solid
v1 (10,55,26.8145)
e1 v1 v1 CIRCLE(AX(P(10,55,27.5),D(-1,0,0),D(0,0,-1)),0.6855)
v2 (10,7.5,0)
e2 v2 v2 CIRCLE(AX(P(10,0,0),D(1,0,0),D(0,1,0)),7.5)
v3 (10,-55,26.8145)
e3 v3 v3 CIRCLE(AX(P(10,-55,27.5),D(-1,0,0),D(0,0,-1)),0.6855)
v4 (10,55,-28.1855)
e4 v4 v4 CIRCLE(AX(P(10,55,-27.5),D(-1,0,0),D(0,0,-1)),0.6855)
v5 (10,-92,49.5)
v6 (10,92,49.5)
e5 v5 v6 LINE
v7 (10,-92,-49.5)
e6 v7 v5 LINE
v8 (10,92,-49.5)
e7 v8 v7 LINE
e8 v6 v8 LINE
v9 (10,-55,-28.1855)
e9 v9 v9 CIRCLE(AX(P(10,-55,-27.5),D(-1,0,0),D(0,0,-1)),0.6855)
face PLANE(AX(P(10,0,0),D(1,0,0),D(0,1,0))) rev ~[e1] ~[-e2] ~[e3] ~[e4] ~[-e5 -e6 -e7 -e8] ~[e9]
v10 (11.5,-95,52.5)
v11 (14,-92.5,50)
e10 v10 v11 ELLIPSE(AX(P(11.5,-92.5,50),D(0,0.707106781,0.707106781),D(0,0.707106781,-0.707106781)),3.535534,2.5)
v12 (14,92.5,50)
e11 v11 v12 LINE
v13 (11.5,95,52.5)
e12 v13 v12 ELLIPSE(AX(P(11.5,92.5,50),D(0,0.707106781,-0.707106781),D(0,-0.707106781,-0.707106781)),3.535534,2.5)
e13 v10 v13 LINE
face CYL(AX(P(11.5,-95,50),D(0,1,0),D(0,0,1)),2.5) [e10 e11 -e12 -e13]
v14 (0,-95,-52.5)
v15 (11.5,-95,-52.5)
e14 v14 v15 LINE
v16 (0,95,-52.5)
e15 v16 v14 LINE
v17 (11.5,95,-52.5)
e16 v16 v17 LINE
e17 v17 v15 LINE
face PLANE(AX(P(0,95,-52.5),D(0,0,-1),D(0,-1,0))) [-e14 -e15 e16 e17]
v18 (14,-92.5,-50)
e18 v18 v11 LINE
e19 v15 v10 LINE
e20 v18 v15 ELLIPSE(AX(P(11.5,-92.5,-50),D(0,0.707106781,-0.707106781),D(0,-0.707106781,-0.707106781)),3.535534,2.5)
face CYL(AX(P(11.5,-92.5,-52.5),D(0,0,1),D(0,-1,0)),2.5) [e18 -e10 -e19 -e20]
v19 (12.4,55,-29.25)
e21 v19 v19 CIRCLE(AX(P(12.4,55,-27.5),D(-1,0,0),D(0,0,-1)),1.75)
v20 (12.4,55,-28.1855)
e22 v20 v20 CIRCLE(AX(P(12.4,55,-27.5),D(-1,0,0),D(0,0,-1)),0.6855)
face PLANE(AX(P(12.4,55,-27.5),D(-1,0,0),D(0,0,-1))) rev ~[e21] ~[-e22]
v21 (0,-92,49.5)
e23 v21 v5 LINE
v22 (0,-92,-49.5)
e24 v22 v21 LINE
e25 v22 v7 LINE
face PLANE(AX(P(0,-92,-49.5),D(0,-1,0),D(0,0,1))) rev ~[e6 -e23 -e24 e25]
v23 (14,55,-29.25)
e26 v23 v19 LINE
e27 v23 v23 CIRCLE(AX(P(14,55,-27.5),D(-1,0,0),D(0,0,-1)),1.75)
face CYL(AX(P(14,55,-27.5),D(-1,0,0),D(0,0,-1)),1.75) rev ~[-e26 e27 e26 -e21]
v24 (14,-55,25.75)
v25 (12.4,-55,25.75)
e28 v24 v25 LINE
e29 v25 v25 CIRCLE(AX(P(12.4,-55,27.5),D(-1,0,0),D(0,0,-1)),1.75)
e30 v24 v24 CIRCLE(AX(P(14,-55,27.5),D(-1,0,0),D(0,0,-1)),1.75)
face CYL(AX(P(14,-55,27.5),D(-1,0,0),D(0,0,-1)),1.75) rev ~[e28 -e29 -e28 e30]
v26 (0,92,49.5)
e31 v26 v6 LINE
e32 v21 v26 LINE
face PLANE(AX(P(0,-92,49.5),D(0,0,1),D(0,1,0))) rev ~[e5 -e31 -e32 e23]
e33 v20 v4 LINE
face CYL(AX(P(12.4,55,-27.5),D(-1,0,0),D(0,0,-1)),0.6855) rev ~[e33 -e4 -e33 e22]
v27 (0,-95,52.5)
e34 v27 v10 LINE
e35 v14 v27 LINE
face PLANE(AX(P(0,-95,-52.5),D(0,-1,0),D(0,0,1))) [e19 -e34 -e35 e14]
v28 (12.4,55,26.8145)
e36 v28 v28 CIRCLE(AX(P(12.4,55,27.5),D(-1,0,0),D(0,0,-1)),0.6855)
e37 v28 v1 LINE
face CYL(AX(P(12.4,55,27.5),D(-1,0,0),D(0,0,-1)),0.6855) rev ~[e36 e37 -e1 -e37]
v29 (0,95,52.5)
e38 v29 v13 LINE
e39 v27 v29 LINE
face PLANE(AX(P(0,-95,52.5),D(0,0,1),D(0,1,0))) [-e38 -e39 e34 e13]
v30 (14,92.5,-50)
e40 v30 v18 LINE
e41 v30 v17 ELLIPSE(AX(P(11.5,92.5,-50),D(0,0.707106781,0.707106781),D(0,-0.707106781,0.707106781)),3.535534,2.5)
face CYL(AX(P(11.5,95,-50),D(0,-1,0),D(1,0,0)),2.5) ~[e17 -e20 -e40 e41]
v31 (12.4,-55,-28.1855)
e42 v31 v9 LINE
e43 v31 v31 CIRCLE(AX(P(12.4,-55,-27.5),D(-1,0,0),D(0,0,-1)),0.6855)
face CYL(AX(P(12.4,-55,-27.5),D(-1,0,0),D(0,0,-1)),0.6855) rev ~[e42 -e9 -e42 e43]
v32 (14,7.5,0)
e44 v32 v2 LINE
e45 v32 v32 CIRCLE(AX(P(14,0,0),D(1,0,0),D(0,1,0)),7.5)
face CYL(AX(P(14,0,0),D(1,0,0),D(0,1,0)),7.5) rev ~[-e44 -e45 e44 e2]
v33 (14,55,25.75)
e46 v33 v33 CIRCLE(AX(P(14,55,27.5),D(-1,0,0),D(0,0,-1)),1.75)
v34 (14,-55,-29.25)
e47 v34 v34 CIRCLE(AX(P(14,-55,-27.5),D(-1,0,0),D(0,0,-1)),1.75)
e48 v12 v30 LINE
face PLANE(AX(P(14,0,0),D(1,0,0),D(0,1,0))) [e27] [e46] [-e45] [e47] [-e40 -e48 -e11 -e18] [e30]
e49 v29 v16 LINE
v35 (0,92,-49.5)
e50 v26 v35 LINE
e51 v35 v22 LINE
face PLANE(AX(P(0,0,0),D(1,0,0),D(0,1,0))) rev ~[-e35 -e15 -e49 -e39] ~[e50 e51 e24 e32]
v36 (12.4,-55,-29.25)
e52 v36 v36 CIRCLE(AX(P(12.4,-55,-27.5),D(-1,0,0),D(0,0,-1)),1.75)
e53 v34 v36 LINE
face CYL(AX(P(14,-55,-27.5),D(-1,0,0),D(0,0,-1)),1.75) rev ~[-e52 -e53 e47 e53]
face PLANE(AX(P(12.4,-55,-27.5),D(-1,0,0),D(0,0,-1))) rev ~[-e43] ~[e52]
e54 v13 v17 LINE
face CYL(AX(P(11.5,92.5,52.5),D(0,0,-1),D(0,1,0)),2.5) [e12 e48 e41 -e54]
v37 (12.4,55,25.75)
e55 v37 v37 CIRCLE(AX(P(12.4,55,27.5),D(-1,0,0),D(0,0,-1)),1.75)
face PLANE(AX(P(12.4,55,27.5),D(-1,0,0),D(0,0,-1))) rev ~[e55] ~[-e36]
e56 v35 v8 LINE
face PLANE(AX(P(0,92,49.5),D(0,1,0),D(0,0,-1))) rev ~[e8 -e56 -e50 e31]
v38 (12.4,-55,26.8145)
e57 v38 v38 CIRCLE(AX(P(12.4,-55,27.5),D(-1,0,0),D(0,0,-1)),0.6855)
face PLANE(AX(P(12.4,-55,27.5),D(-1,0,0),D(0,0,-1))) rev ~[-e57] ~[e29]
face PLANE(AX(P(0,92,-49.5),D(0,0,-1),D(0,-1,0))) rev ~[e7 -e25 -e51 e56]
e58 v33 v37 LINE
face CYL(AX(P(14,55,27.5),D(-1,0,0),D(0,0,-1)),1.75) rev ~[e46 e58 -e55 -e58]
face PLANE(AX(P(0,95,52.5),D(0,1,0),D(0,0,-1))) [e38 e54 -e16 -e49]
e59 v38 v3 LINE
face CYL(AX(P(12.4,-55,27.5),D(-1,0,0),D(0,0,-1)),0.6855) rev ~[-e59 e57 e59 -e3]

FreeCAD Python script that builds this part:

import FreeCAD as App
import Part
import Sketcher
from FreeCAD import Vector


def edges_at(feature, points):
    """Names of the edges that pass closest to the given points."""
    edges = feature.Shape.Edges
    near = lambda p: min(range(len(edges)), key=lambda i: edges[i].distToShape(Part.Vertex(*p))[0])
    return sorted({f"Edge{near(p) + 1}" for p in points})

doc = App.newDocument("Part")
params = doc.addObject("Spreadsheet::Sheet", "Params")
for row, (alias, value) in enumerate([
    ("sketch1_width", "190 mm"),
    ("sketch1_height", "105 mm"),
    ("pad1_length", "14 mm"),
    ("sketch2_width", "184 mm"),
    ("sketch2_height", "99 mm"),
    ("pocket1_length", "10 mm"),
    ("fillet_radius", "2.5 mm"),
    ("sketch3_diameter", "15 mm"),
    ("pocket2_length", "40 mm"),
    ("hole_diameter", "1.371 mm"),
    ("hole_depth", "10 mm"),
    ("hole_cbore_diameter", "3.5 mm"),
    ("hole_cbore_depth", "1.6 mm"),
], start=1):
    params.set(f"A{row}", alias)
    params.set(f"B{row}", "=" + value)
    params.setAlias(f"B{row}", alias)

body = doc.addObject("PartDesign::Body", "Body")

# Sketch on YZ plane
sketch1 = doc.addObject("Sketcher::SketchObject", "Sketch")
body.addObject(sketch1)
sketch1.AttachmentSupport = (doc.YZ_Plane, [""])
sketch1.MapMode = "FlatFace"
sketch1.addGeometry(Part.LineSegment(Vector(95, 52.5, 0), Vector(-95, 52.5, 0)), False)
sketch1.addGeometry(Part.LineSegment(Vector(-95, 52.5, 0), Vector(-95, -52.5, 0)), False)
sketch1.addGeometry(Part.LineSegment(Vector(-95, -52.5, 0), Vector(95, -52.5, 0)), False)
sketch1.addGeometry(Part.LineSegment(Vector(95, -52.5, 0), Vector(95, 52.5, 0)), False)
sketch1.addConstraint(Sketcher.Constraint("Coincident", 0, 2, 1, 1))
sketch1.addConstraint(Sketcher.Constraint("Coincident", 1, 2, 2, 1))
sketch1.addConstraint(Sketcher.Constraint("Coincident", 2, 2, 3, 1))
sketch1.addConstraint(Sketcher.Constraint("Coincident", 3, 2, 0, 1))
sketch1.addConstraint(Sketcher.Constraint("Horizontal", 0))
sketch1.addConstraint(Sketcher.Constraint("Vertical", 1))
sketch1.addConstraint(Sketcher.Constraint("Horizontal", 2))
sketch1.addConstraint(Sketcher.Constraint("Vertical", 3))
sketch1.addConstraint(Sketcher.Constraint("Symmetric", 0, 2, 2, 2, -1, 1))
sketch1.addConstraint(Sketcher.Constraint("DistanceX", 0, 2, 0, 1, 190.0))
sketch1.addConstraint(Sketcher.Constraint("DistanceY", 1, 2, 1, 1, 105.0))
sketch1.setExpression("Constraints[9]", "Params.sketch1_width")
sketch1.setExpression("Constraints[10]", "Params.sketch1_height")
pad1 = doc.addObject("PartDesign::Pad", "Pad")
body.addObject(pad1)
pad1.Profile = sketch1
pad1.setExpression("Length", "Params.pad1_length")

# Sketch on YZ plane
sketch2 = doc.addObject("Sketcher::SketchObject", "Sketch001")
body.addObject(sketch2)
sketch2.AttachmentSupport = (doc.YZ_Plane, [""])
sketch2.MapMode = "FlatFace"
sketch2.addGeometry(Part.LineSegment(Vector(-92, -49.5, 0), Vector(92, -49.5, 0)), False)
sketch2.addGeometry(Part.LineSegment(Vector(92, -49.5, 0), Vector(92, 49.5, 0)), False)
sketch2.addGeometry(Part.LineSegment(Vector(92, 49.5, 0), Vector(-92, 49.5, 0)), False)
sketch2.addGeometry(Part.LineSegment(Vector(-92, 49.5, 0), Vector(-92, -49.5, 0)), False)
sketch2.addConstraint(Sketcher.Constraint("Coincident", 0, 2, 1, 1))
sketch2.addConstraint(Sketcher.Constraint("Coincident", 1, 2, 2, 1))
sketch2.addConstraint(Sketcher.Constraint("Coincident", 2, 2, 3, 1))
sketch2.addConstraint(Sketcher.Constraint("Coincident", 3, 2, 0, 1))
sketch2.addConstraint(Sketcher.Constraint("Horizontal", 0))
sketch2.addConstraint(Sketcher.Constraint("Vertical", 1))
sketch2.addConstraint(Sketcher.Constraint("Horizontal", 2))
sketch2.addConstraint(Sketcher.Constraint("Vertical", 3))
sketch2.addConstraint(Sketcher.Constraint("Symmetric", 0, 2, 2, 2, -1, 1))
sketch2.addConstraint(Sketcher.Constraint("DistanceX", 0, 1, 0, 2, 184.0))
sketch2.addConstraint(Sketcher.Constraint("DistanceY", 1, 1, 1, 2, 99.0))
sketch2.setExpression("Constraints[9]", "Params.sketch2_width")
sketch2.setExpression("Constraints[10]", "Params.sketch2_height")
pocket1 = doc.addObject("PartDesign::Pocket", "Pocket")
body.addObject(pocket1)
pocket1.Profile = sketch2
pocket1.setExpression("Length", "Params.pocket1_length")
pocket1.Reversed = True
doc.recompute()

fillet = doc.addObject("PartDesign::Fillet", "Fillet")
body.addObject(fillet)
fillet.Base = (pocket1, edges_at(pocket1, [
    (14, 0, -52.5),
    (14, 95, 0),
    (14, 0, 52.5),
    (14, -95, 0),
]))
fillet.setExpression("Radius", "Params.fillet_radius")

# Sketch on YZ plane
sketch3 = doc.addObject("Sketcher::SketchObject", "Sketch002")
body.addObject(sketch3)
sketch3.AttachmentSupport = (doc.YZ_Plane, [""])
sketch3.MapMode = "FlatFace"
sketch3.AttachmentOffset = App.Placement(Vector(0, 0, 14), App.Rotation())
sketch3.addGeometry(Part.Circle(Vector(0, 0, 0), Vector(0, 0, 1), 7.5), False)
sketch3.addConstraint(Sketcher.Constraint("Coincident", 0, 3, -1, 1))
sketch3.addConstraint(Sketcher.Constraint("Diameter", 0, 15.0))
sketch3.setExpression("Constraints[1]", "Params.sketch3_diameter")
pocket2 = doc.addObject("PartDesign::Pocket", "Pocket001")
body.addObject(pocket2)
pocket2.Profile = sketch3
pocket2.setExpression("Length", "Params.pocket2_length")

# Sketch on YZ plane
sketch4 = doc.addObject("Sketcher::SketchObject", "Sketch003")
body.addObject(sketch4)
sketch4.AttachmentSupport = (doc.YZ_Plane, [""])
sketch4.MapMode = "FlatFace"
sketch4.AttachmentOffset = App.Placement(Vector(0, 0, 14), App.Rotation())
sketch4.addGeometry(Part.Circle(Vector(55, 27.5, 0), Vector(0, 0, 1), 0.6855), False)
sketch4.addGeometry(Part.Circle(Vector(-55, 27.5, 0), Vector(0, 0, 1), 0.6855), False)
sketch4.addGeometry(Part.Circle(Vector(-55, -27.5, 0), Vector(0, 0, 1), 0.6855), False)
sketch4.addGeometry(Part.Circle(Vector(55, -27.5, 0), Vector(0, 0, 1), 0.6855), False)
sketch4.addConstraint(Sketcher.Constraint("Equal", 0, 1))
sketch4.addConstraint(Sketcher.Constraint("Equal", 1, 2))
sketch4.addConstraint(Sketcher.Constraint("Equal", 2, 3))
sketch4.addConstraint(Sketcher.Constraint("Symmetric", 0, 3, 2, 3, -1, 1))
sketch4.addConstraint(Sketcher.Constraint("Symmetric", 1, 3, 3, 3, -1, 1))
sketch4.addConstraint(Sketcher.Constraint("Symmetric", 0, 3, 1, 3, -2))
sketch4.addConstraint(Sketcher.Constraint("Diameter", 0, 1.371))
sketch4.addConstraint(Sketcher.Constraint("DistanceX", -1, 1, 0, 3, 55.0))
sketch4.addConstraint(Sketcher.Constraint("DistanceY", 2, 3, 1, 3, 55.0))
doc.recompute()
hole = doc.addObject("PartDesign::Hole", "Hole")
body.addObject(hole)
hole.Profile = sketch4
hole.ThreadType = "None"
hole.setExpression("Diameter", "Params.hole_diameter")
hole.DepthType = "Dimension"
hole.setExpression("Depth", "Params.hole_depth")
hole.DrillPoint = "Angled"
hole.DrillPointAngle = 118
hole.HoleCutType = "Counterbore"
hole.setExpression("HoleCutDiameter", "Params.hole_cbore_diameter")
hole.setExpression("HoleCutDepth", "Params.hole_cbore_depth")

doc.recompute()
